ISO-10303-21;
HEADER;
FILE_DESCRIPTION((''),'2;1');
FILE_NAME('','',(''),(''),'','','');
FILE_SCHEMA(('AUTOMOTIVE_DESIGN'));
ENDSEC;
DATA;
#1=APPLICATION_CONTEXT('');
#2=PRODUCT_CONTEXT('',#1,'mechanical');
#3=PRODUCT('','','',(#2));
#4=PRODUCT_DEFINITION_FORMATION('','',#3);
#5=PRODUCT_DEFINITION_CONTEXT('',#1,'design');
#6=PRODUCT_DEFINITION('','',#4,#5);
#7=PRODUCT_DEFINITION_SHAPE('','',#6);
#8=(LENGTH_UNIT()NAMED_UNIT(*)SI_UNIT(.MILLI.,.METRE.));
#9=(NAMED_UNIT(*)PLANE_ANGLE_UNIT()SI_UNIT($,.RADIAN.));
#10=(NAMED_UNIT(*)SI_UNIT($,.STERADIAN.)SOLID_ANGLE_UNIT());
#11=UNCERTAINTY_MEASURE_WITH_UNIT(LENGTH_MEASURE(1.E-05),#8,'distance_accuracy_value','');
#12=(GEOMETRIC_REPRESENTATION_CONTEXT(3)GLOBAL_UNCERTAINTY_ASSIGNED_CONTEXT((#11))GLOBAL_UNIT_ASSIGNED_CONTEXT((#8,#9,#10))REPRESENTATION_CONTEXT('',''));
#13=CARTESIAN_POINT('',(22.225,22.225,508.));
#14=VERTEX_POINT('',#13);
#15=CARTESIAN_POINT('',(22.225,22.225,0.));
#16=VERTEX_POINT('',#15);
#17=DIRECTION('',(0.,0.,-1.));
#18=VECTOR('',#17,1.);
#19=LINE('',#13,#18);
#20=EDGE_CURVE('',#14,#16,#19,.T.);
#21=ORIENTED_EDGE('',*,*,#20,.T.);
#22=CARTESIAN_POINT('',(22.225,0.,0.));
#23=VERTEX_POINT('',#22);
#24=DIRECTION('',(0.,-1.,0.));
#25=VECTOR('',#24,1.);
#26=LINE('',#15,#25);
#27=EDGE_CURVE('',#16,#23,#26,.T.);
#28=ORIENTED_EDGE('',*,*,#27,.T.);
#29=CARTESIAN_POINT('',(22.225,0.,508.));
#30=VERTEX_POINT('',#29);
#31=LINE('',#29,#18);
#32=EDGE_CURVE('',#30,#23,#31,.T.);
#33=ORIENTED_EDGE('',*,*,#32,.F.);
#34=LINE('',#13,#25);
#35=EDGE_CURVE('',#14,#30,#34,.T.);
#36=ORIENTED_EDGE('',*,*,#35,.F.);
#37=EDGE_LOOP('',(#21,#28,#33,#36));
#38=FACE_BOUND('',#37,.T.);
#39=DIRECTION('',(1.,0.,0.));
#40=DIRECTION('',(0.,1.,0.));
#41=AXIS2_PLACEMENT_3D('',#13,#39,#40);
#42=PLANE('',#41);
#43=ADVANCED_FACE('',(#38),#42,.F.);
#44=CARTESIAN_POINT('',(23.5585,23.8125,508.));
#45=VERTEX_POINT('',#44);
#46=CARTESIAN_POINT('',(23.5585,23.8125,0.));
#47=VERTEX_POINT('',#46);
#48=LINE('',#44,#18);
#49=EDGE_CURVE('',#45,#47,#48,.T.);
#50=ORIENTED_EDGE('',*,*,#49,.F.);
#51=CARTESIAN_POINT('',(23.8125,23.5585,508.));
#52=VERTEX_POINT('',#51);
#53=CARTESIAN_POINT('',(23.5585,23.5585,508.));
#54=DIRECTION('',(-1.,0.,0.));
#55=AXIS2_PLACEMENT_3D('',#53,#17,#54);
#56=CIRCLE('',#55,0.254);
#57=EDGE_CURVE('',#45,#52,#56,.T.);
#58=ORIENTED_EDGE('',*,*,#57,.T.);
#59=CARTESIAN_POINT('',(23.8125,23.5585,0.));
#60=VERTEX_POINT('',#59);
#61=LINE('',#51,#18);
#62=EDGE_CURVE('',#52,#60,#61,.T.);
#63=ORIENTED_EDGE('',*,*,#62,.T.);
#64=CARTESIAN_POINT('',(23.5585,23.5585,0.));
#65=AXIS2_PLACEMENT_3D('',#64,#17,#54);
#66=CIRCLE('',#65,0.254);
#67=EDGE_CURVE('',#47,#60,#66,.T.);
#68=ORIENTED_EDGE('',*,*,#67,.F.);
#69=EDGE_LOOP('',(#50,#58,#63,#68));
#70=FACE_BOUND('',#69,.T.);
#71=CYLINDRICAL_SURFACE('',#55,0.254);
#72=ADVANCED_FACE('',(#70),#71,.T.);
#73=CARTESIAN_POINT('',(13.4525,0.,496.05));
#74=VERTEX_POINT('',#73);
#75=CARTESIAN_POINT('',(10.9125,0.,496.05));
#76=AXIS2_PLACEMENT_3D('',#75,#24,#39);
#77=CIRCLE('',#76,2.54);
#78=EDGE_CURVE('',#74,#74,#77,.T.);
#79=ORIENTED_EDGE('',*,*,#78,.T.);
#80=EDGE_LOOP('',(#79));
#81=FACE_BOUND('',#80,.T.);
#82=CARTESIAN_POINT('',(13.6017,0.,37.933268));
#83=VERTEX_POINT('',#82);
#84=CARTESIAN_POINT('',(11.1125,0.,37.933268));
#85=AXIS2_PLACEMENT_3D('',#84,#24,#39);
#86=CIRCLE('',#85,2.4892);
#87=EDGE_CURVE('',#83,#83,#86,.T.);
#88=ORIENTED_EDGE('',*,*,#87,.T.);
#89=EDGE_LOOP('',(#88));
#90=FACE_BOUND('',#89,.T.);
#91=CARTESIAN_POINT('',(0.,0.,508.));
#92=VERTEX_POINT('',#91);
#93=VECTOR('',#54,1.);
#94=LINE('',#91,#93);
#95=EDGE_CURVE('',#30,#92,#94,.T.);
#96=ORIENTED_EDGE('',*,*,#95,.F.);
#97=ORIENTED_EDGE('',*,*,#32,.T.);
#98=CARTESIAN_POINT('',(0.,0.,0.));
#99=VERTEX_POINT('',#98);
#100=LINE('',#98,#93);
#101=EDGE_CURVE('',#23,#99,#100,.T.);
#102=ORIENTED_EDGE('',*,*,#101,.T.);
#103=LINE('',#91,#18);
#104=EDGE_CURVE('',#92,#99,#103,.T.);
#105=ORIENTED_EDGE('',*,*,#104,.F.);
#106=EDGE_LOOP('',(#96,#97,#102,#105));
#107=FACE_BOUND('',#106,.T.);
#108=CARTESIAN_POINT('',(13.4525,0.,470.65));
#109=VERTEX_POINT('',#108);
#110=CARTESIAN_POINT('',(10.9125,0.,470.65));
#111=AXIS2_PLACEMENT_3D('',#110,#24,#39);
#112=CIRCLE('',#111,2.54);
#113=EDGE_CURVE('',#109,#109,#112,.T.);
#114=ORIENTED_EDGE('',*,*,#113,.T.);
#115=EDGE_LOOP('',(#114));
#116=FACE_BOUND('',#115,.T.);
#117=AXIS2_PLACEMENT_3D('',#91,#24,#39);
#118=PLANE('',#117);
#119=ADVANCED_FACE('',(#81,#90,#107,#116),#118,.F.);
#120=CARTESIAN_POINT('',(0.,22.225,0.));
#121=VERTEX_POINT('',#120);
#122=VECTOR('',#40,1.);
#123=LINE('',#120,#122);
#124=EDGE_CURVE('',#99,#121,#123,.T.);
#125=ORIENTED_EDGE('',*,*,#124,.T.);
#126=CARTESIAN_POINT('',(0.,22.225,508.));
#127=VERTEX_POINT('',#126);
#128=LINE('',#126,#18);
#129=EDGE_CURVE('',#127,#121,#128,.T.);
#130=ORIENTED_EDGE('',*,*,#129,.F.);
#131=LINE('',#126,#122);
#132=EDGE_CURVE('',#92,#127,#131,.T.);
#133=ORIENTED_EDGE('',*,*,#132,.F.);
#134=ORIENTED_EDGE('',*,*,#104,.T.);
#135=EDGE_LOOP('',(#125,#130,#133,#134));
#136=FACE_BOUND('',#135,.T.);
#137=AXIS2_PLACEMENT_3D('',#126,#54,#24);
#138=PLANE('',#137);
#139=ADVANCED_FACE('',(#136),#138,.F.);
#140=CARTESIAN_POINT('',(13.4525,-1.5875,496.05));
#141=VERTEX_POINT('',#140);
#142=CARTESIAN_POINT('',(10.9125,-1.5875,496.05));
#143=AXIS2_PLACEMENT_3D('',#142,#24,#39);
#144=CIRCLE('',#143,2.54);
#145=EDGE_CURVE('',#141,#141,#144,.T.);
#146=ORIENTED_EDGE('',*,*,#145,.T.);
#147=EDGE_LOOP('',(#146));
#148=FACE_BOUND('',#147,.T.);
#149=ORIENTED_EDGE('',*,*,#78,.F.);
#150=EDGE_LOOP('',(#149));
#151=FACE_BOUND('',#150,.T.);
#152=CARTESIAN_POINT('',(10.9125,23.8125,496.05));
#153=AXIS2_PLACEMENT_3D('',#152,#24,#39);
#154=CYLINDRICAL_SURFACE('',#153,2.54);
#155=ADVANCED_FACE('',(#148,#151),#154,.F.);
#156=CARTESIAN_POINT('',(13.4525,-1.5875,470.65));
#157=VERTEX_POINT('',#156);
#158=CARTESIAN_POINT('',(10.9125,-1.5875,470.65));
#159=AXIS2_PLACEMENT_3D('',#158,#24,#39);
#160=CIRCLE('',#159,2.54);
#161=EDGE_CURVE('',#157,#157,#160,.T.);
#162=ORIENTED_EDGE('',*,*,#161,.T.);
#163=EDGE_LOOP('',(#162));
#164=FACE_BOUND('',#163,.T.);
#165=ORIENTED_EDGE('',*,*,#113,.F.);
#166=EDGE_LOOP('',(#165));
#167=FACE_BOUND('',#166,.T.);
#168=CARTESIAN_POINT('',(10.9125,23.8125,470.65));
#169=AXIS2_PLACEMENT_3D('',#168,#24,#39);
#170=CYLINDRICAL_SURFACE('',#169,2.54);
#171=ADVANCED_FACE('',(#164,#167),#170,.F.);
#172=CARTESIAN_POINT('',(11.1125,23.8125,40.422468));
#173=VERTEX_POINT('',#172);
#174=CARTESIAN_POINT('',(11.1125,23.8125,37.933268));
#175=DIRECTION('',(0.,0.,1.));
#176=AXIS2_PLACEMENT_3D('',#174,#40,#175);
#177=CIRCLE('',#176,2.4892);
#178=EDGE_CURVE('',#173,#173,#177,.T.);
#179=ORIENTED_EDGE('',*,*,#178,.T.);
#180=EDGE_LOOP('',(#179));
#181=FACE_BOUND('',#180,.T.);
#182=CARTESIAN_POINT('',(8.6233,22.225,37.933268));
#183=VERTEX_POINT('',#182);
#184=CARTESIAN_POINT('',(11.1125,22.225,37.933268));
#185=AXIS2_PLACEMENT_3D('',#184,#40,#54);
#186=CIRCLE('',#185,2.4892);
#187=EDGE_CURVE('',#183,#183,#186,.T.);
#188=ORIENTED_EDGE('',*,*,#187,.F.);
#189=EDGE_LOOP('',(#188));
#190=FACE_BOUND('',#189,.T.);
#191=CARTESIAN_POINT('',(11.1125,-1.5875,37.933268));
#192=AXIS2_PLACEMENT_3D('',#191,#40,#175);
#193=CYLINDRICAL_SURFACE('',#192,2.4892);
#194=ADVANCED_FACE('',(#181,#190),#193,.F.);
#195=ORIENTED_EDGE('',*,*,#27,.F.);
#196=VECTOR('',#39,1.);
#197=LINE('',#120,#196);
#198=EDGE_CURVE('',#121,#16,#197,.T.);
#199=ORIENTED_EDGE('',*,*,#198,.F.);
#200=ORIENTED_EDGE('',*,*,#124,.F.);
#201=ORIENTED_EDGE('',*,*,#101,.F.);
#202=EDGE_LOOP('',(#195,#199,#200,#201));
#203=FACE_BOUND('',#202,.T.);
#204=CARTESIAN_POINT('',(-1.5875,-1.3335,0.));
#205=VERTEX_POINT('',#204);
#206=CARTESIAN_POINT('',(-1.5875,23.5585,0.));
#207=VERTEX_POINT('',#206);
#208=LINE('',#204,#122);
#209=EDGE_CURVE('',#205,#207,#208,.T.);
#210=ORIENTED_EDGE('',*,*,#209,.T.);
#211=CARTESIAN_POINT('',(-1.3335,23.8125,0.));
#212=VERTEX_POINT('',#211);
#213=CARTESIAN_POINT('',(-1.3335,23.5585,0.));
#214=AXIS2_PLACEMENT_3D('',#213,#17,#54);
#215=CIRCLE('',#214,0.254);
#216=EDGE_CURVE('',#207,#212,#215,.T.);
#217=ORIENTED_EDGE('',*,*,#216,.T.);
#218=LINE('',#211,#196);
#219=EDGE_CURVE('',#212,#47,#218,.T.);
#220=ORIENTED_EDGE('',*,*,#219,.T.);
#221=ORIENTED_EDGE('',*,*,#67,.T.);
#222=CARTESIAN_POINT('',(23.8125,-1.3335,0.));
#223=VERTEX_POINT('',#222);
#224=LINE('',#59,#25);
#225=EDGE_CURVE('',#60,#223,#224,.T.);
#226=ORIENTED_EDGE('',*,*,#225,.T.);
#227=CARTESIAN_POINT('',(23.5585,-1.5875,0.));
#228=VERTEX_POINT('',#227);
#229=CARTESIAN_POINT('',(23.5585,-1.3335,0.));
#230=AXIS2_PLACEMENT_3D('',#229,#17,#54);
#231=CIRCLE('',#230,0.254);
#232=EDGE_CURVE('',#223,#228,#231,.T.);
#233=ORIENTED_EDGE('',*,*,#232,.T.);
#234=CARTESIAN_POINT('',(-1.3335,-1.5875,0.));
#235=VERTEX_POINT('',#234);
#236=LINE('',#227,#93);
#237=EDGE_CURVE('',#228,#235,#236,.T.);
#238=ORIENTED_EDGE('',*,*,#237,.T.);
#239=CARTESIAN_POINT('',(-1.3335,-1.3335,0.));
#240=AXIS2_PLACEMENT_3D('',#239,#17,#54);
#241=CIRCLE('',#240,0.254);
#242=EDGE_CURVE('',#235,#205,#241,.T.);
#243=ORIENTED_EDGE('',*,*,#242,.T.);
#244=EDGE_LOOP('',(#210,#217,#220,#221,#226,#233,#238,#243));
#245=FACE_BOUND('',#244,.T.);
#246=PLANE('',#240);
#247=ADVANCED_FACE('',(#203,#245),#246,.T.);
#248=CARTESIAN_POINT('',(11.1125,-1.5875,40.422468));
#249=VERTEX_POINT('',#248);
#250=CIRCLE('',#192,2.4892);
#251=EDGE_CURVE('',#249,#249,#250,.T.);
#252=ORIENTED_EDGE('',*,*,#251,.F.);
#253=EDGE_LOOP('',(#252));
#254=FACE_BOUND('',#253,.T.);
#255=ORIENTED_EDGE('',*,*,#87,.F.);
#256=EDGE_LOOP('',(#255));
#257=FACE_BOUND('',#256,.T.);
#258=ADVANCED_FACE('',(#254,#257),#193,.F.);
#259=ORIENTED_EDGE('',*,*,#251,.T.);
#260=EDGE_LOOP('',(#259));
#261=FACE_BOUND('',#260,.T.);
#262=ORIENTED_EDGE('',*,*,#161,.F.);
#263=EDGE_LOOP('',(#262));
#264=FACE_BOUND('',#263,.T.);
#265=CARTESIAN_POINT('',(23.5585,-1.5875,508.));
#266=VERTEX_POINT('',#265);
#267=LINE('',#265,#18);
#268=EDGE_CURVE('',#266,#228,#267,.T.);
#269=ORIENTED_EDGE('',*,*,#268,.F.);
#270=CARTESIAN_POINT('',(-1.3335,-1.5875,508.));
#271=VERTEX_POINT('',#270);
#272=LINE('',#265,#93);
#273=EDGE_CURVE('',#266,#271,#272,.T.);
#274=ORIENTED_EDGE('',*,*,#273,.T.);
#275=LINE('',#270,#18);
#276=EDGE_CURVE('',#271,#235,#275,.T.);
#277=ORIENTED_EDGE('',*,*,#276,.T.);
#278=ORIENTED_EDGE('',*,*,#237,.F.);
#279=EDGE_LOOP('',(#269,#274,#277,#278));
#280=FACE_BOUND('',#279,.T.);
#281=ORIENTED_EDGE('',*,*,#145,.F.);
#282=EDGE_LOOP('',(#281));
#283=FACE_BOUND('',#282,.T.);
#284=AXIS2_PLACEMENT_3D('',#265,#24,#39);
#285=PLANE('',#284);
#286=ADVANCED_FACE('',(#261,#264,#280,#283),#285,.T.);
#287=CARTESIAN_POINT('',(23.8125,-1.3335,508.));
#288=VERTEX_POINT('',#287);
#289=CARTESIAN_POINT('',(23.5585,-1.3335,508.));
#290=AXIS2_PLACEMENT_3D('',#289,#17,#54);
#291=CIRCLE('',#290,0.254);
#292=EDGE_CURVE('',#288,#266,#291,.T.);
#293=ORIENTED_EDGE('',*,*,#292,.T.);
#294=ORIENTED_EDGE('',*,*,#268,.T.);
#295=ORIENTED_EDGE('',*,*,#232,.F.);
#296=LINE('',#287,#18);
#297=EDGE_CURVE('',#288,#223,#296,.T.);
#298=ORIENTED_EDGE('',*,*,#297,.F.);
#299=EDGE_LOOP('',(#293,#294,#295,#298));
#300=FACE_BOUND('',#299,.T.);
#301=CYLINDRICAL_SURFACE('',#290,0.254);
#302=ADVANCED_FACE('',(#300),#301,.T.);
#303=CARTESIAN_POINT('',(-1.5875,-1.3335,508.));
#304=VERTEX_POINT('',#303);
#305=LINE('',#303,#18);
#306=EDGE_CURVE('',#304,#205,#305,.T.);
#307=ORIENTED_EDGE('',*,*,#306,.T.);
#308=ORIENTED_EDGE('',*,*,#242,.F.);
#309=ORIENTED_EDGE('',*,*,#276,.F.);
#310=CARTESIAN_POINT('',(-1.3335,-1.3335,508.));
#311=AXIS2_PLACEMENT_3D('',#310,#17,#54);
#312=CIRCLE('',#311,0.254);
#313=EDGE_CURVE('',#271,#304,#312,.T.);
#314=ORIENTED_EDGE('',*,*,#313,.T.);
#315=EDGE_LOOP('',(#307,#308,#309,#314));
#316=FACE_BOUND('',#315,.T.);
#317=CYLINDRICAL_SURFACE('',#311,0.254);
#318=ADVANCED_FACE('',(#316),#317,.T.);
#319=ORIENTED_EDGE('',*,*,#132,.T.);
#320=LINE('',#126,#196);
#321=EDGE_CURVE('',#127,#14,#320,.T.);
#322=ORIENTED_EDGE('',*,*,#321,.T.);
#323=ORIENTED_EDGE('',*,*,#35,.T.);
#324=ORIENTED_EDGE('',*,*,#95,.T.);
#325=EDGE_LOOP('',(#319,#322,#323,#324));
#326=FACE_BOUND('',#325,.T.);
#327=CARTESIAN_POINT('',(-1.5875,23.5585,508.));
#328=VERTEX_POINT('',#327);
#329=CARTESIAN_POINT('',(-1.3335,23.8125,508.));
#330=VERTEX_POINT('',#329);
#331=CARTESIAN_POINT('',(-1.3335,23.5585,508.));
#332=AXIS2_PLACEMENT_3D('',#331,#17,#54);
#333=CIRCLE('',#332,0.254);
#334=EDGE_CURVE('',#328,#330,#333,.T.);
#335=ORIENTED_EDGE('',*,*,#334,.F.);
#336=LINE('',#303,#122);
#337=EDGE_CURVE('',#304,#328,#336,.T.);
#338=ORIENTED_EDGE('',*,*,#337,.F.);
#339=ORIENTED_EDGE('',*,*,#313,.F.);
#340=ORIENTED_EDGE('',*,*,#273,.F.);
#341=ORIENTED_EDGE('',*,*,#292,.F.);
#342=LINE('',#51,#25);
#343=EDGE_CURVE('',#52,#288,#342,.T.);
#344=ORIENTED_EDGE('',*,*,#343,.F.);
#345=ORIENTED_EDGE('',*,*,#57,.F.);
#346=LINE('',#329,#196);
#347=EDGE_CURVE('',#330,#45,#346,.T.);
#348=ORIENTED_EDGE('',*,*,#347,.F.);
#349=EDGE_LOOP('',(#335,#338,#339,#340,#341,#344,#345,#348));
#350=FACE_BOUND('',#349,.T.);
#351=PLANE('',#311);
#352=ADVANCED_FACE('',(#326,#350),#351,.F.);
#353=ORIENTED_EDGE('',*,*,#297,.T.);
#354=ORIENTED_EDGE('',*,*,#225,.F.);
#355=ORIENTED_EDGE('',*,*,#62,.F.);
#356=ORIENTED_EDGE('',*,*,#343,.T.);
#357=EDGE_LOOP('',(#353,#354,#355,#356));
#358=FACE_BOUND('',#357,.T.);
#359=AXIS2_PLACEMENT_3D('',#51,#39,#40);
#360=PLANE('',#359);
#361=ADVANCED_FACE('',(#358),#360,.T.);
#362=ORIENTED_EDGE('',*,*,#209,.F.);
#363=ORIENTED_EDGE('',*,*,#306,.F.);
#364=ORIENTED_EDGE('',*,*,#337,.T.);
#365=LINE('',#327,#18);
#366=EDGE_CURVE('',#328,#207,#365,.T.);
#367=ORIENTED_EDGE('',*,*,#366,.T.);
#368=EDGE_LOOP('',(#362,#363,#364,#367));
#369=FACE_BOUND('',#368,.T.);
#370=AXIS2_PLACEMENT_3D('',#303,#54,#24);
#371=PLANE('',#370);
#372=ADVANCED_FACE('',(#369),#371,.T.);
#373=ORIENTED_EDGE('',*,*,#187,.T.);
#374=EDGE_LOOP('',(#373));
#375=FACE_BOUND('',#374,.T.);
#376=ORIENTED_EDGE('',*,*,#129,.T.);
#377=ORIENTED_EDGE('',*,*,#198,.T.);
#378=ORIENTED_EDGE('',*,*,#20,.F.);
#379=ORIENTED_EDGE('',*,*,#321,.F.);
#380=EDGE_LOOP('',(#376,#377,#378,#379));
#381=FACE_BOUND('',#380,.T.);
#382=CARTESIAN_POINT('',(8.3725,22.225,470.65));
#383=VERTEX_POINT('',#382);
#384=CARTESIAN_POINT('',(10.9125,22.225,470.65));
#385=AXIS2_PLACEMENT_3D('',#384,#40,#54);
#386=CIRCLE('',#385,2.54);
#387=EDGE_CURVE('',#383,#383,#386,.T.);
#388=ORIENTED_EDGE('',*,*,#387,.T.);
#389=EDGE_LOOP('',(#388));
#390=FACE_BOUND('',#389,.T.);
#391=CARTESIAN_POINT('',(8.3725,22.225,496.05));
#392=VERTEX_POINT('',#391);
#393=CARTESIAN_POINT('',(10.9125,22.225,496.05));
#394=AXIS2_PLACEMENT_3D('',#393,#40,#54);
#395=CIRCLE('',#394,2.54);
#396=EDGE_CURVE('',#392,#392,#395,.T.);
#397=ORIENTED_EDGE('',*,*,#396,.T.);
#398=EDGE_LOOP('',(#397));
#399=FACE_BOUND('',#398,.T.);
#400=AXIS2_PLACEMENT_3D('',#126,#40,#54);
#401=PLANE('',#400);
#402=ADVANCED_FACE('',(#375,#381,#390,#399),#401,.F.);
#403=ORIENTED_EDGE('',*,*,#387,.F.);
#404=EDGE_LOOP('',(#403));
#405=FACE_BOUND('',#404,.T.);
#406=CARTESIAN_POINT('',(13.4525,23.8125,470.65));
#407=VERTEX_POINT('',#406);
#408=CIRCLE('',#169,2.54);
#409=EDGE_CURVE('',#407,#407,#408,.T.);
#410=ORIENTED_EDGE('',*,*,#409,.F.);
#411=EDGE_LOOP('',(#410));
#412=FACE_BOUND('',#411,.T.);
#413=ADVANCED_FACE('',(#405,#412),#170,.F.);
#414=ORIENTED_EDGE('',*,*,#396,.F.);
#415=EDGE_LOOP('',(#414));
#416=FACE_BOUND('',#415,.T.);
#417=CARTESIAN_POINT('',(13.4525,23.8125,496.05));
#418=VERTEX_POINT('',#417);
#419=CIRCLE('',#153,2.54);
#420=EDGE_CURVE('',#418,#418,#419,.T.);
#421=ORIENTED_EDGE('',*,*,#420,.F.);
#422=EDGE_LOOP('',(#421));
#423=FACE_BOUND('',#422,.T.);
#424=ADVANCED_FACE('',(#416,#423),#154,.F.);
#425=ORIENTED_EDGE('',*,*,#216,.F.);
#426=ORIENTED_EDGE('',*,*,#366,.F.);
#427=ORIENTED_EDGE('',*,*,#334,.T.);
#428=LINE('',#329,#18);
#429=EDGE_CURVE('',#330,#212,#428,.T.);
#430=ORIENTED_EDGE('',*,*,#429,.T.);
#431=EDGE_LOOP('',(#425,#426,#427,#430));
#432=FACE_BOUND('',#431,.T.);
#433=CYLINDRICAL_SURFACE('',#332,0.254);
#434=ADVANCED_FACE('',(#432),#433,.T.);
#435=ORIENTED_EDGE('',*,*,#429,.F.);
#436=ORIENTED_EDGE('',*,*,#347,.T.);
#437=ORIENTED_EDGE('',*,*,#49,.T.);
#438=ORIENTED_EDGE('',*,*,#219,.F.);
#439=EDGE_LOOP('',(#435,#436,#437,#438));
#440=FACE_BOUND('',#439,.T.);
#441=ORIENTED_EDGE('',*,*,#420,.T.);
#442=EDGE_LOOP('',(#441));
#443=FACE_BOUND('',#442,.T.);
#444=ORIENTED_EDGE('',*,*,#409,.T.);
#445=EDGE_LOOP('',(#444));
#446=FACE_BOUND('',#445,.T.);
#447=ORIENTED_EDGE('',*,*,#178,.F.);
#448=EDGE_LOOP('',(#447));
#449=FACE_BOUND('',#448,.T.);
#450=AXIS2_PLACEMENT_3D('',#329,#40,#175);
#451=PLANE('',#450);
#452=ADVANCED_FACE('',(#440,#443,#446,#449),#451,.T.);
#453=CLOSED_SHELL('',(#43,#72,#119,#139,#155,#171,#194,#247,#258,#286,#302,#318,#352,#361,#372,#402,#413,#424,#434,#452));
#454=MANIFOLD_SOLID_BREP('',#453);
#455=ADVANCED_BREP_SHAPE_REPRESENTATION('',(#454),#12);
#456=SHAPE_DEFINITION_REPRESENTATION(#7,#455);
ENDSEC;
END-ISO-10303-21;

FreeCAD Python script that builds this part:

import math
import FreeCAD as App
import Part
import Sketcher
Q = App.Units.Quantity

doc = App.newDocument("Part")
body = doc.addObject("PartDesign::Body", "Body")

# Sketch on XY plane
sketch1 = body.newObject("Sketcher::SketchObject", "Sketch")
sketch1.AttachmentSupport = (doc.getObject("XY_Plane"), [""])
sketch1.MapMode = "FlatFace"
sketch1.addGeometry([
    Part.LineSegment(App.Vector(-1.59, -1.33, 0), App.Vector(-1.59, 23.56, 0)),  # 0
    Part.ArcOfCircle(Part.Circle(App.Vector(-1.33, 23.56, 0), App.Vector(0, 0, 1), 0.25), math.radians(90), math.radians(180)),  # 1
    Part.LineSegment(App.Vector(-1.33, 23.81, 0), App.Vector(23.56, 23.81, 0)),  # 2
    Part.ArcOfCircle(Part.Circle(App.Vector(23.56, 23.56, 0), App.Vector(0, 0, 1), 0.25), math.radians(0), math.radians(90)),  # 3
    Part.LineSegment(App.Vector(23.81, 23.56, 0), App.Vector(23.81, -1.33, 0)),  # 4
    Part.ArcOfCircle(Part.Circle(App.Vector(23.56, -1.33, 0), App.Vector(0, 0, 1), 0.25), math.radians(-90), math.radians(0)),  # 5
    Part.LineSegment(App.Vector(23.56, -1.59, 0), App.Vector(-1.33, -1.59, 0)),  # 6
    Part.ArcOfCircle(Part.Circle(App.Vector(-1.33, -1.33, 0), App.Vector(0, 0, 1), 0.25), math.radians(-180), math.radians(-90)),  # 7
    Part.LineSegment(App.Vector(0, 0, 0), App.Vector(22.23, 0, 0)),  # 8
    Part.LineSegment(App.Vector(22.23, 0, 0), App.Vector(22.23, 22.23, 0)),  # 9
    Part.LineSegment(App.Vector(22.23, 22.23, 0), App.Vector(0, 22.23, 0)),  # 10
    Part.LineSegment(App.Vector(0, 22.23, 0), App.Vector(0, 0, 0)),  # 11
], False)
sketch1.addConstraint([
    Sketcher.Constraint("Tangent", 0, 2, 1, 2),
    Sketcher.Constraint("Tangent", 1, 1, 2, 1),
    Sketcher.Constraint("Tangent", 2, 2, 3, 2),
    Sketcher.Constraint("Tangent", 3, 1, 4, 1),
    Sketcher.Constraint("Tangent", 4, 2, 5, 2),
    Sketcher.Constraint("Tangent", 5, 1, 6, 1),
    Sketcher.Constraint("Tangent", 6, 2, 7, 2),
    Sketcher.Constraint("Tangent", 7, 1, 0, 1),
    Sketcher.Constraint("Coincident", 8, 2, 9, 1),
    Sketcher.Constraint("Coincident", 9, 2, 10, 1),
    Sketcher.Constraint("Coincident", 10, 2, 11, 1),
    Sketcher.Constraint("Coincident", 11, 2, 8, 1),
    Sketcher.Constraint("Vertical", 0),
    Sketcher.Constraint("Horizontal", 2),
    Sketcher.Constraint("Vertical", 4),
    Sketcher.Constraint("Horizontal", 6),
    Sketcher.Constraint("Horizontal", 8),
    Sketcher.Constraint("Vertical", 9),
    Sketcher.Constraint("Horizontal", 10),
    Sketcher.Constraint("Vertical", 11),
    Sketcher.Constraint("Coincident", 11, 2, -1, 1),
    Sketcher.Constraint("Equal", 1, 3),
    Sketcher.Constraint("Equal", 3, 5),
    Sketcher.Constraint("Equal", 5, 7),
    Sketcher.Constraint("Equal", 6, 0),
    Sketcher.Constraint("Equal", 10, 9),
    Sketcher.Constraint("Radius", 1, Q("0.01 in")),
    Sketcher.Constraint("DistanceX", 2, 1, 2, 2, Q("0.98 in")),
    Sketcher.Constraint("DistanceX", 8, 1, 8, 2, Q("0.875 in")),
    Sketcher.Constraint("DistanceX", 0, 2, -1, 1, Q("0.0625 in")),
    Sketcher.Constraint("DistanceY", -1, 1, 1, 1, Q("0.9375 in")),
])
pad1 = body.newObject("PartDesign::Pad", "Pad")
pad1.Profile = sketch1
pad1.Length = Q("20 in")

# Sketch on XZ plane
sketch2 = body.newObject("Sketcher::SketchObject", "Sketch001")
sketch2.AttachmentSupport = (doc.getObject("XZ_Plane"), [""])
sketch2.MapMode = "FlatFace"
sketch2.AttachmentOffset = App.Placement(App.Vector(0, 0, 0.0625 * 25.4), App.Rotation())
sketch2.addGeometry([
    Part.Circle(App.Vector(10.9, 470.6, 0), App.Vector(0, 0, 1), 2.5),
    Part.Circle(App.Vector(10.9, 496.1, 0), App.Vector(0, 0, 1), 2.5),
], False)
sketch2.addConstraint([
    Sketcher.Constraint("Equal", 0, 1),
    Sketcher.Constraint("Vertical", 0, 3, 1, 3),
    Sketcher.Constraint("Diameter", 0, Q("0.2 in")),
    Sketcher.Constraint("DistanceY", 0, 3, 1, 3, Q("1 in")),
    Sketcher.Constraint("DistanceX", -1, 1, 0, 3, 10.9125),
    Sketcher.Constraint("DistanceY", -1, 1, 0, 3, 470.65),
])
pocket1 = body.newObject("PartDesign::Pocket", "Pocket")
pocket1.Profile = sketch2
pocket1.Type = "ThroughAll"

# Sketch on XZ plane
sketch3 = body.newObject("Sketcher::SketchObject", "Sketch002")
sketch3.AttachmentSupport = (doc.getObject("XZ_Plane"), [""])
sketch3.MapMode = "FlatFace"
sketch3.AttachmentOffset = App.Placement(App.Vector(0, 0, -0.9375 * 25.4), App.Rotation())
sketch3.addGeometry(Part.Circle(App.Vector(11.1, 37.9, 0), App.Vector(0, 0, 1), 2.5), False)
sketch3.addConstraint([
    Sketcher.Constraint("Diameter", 0, Q("0.196 in")),
    Sketcher.Constraint("DistanceX", -1, 1, 0, 3, Q("0.4375 in")),
    Sketcher.Constraint("DistanceY", -1, 1, 0, 3, 37.933268),
])
pocket2 = body.newObject("PartDesign::Pocket", "Pocket001")
pocket2.Profile = sketch3
pocket2.Length = Q("1 in")
pocket2.Reversed = True

doc.recompute()
